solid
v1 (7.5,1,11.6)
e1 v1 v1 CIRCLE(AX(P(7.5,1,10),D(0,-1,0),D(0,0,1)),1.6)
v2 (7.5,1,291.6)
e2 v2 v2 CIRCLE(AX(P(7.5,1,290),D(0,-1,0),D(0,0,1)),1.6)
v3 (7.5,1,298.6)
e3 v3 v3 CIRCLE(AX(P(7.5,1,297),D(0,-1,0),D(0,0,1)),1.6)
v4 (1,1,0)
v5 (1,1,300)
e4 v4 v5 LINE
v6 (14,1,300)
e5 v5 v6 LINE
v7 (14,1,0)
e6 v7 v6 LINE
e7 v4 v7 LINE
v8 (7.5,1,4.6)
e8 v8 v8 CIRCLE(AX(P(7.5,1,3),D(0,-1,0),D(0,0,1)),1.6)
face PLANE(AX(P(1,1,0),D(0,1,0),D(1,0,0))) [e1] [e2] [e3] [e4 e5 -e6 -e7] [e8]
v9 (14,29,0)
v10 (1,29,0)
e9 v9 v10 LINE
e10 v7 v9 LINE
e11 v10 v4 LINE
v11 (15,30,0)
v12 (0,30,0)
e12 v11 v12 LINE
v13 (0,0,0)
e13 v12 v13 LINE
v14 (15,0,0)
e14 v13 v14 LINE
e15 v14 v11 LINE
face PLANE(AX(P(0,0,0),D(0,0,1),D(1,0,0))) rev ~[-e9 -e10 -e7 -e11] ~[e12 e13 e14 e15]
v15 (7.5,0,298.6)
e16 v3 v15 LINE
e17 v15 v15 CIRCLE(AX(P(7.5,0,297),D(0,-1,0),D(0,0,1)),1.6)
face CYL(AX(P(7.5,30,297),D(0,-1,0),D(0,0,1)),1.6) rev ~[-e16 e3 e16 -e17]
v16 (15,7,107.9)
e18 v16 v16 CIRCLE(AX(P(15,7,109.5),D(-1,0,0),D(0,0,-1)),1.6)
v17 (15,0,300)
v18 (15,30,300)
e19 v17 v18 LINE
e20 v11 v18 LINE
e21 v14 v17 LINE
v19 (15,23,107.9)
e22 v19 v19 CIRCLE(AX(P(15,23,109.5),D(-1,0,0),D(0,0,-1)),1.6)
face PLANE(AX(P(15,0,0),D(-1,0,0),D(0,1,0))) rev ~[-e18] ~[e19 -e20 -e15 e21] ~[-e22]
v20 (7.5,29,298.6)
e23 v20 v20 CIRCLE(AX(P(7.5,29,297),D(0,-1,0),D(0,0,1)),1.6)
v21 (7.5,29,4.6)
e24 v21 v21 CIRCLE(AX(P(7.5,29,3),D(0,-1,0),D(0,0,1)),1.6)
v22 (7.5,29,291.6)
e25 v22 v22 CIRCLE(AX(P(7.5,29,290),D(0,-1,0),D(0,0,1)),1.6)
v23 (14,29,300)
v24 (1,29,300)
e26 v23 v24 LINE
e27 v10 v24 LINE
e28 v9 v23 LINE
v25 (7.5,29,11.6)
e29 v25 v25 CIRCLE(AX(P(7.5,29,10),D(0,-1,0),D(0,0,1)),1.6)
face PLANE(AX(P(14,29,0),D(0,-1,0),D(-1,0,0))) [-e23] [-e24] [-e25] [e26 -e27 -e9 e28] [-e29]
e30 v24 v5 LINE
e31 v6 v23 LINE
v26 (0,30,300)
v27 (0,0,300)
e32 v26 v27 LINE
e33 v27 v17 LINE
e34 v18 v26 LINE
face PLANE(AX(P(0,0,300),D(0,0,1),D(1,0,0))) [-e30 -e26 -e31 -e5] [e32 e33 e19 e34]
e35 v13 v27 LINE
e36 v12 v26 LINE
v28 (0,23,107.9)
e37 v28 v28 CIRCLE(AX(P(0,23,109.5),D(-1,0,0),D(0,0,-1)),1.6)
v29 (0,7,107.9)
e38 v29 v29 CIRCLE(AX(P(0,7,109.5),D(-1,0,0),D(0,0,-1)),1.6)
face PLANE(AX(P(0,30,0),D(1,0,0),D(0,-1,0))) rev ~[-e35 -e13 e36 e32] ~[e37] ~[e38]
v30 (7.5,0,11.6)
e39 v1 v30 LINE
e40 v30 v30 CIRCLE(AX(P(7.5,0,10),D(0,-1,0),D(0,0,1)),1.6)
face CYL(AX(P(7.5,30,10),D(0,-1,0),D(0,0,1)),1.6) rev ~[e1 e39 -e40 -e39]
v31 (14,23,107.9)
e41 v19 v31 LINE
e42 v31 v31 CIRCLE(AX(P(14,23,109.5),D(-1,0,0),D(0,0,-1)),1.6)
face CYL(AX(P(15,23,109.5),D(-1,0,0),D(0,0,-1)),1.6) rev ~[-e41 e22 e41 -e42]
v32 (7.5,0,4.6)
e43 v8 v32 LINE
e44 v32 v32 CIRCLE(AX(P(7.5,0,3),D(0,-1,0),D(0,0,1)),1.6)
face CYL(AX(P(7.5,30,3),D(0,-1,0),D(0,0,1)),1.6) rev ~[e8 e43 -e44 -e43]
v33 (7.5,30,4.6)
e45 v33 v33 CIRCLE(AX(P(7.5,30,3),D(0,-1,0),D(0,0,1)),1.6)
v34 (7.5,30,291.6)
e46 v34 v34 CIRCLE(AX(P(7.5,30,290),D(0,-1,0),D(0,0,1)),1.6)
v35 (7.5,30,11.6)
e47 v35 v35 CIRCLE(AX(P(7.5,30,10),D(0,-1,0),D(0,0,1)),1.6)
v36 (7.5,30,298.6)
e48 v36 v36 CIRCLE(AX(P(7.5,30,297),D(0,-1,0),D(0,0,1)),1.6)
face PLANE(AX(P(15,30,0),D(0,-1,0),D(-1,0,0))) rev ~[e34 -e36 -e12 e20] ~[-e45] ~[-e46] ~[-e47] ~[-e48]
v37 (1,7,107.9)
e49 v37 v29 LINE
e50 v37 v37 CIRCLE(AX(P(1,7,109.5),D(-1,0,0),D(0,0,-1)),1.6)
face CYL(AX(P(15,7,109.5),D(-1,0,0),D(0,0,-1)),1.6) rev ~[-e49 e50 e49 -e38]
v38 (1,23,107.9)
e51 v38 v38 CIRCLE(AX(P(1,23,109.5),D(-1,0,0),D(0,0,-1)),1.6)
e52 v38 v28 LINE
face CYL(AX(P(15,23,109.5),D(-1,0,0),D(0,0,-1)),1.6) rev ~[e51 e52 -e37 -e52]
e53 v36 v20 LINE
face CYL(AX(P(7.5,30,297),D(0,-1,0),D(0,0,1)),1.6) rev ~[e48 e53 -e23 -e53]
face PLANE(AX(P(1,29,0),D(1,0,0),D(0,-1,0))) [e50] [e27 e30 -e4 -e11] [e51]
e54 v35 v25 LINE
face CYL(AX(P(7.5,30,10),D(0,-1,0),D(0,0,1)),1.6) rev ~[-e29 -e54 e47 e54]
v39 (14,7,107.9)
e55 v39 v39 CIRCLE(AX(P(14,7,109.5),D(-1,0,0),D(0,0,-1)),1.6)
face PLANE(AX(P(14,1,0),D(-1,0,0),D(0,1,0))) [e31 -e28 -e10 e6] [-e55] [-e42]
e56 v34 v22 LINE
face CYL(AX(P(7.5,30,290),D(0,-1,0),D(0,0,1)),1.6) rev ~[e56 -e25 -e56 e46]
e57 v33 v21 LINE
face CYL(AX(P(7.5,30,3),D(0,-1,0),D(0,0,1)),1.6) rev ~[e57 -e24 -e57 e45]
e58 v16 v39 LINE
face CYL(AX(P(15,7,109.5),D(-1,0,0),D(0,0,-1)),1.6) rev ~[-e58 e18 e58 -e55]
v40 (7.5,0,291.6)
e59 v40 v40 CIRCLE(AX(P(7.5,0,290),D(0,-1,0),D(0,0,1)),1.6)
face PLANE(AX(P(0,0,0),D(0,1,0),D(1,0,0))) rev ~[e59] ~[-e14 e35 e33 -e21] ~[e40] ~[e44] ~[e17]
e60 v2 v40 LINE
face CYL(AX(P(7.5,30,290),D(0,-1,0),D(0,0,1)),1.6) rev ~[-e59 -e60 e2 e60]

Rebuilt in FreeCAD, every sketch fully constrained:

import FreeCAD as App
import Part
import Sketcher

V = App.Vector

doc = App.newDocument("Part")
params = doc.addObject("Spreadsheet::Sheet", "Params")
for row, (alias, value) in enumerate([
    ("sketch1_width", "15 mm"),
    ("sketch1_width2", "13 mm"),
    ("sketch1_height", "30 mm"),
    ("sketch1_height2", "28 mm"),
    ("pad1_length", "300 mm"),
    ("sketch2_diameter", "3.2 mm"),
    ("hole_diameter", "3.2 mm"),
    ("hole_depth", "30 mm"),
    ("sketch3_diameter", "3.2 mm"),
    ("hole2_diameter", "3.2 mm"),
    ("hole2_depth", "15 mm"),
], start=1):
    params.set(f"A{row}", alias)
    params.set(f"B{row}", "=" + value)
    params.setAlias(f"B{row}", alias)

body = doc.addObject("PartDesign::Body", "Body")

# Sketch on XY plane
sketch1 = doc.addObject("Sketcher::SketchObject", "Sketch")
body.addObject(sketch1)
sketch1.AttachmentSupport = (doc.XY_Plane, [""])
sketch1.MapMode = "FlatFace"
sketch1.addGeometry([
    Part.LineSegment(V(0, 30, 0), V(0, 0, 0)),  # 0
    Part.LineSegment(V(0, 0, 0), V(15, 0, 0)),  # 1
    Part.LineSegment(V(15, 0, 0), V(15, 30, 0)),  # 2
    Part.LineSegment(V(15, 30, 0), V(0, 30, 0)),  # 3
    Part.LineSegment(V(14, 1, 0), V(1, 1, 0)),  # 4
    Part.LineSegment(V(1, 1, 0), V(1, 29, 0)),  # 5
    Part.LineSegment(V(1, 29, 0), V(14, 29, 0)),  # 6
    Part.LineSegment(V(14, 29, 0), V(14, 1, 0)),  # 7
], False)
sketch1.addConstraint([
    Sketcher.Constraint("Coincident", 0, 2, 1, 1),
    Sketcher.Constraint("Coincident", 1, 2, 2, 1),
    Sketcher.Constraint("Coincident", 2, 2, 3, 1),
    Sketcher.Constraint("Coincident", 3, 2, 0, 1),
    Sketcher.Constraint("Coincident", 4, 2, 5, 1),
    Sketcher.Constraint("Coincident", 5, 2, 6, 1),
    Sketcher.Constraint("Coincident", 6, 2, 7, 1),
    Sketcher.Constraint("Coincident", 7, 2, 4, 1),
    Sketcher.Constraint("Vertical", 0),
    Sketcher.Constraint("Horizontal", 1),
    Sketcher.Constraint("Vertical", 2),
    Sketcher.Constraint("Horizontal", 3),
    Sketcher.Constraint("Horizontal", 4),
    Sketcher.Constraint("Vertical", 5),
    Sketcher.Constraint("Horizontal", 6),
    Sketcher.Constraint("Vertical", 7),
    Sketcher.Constraint("Coincident", 0, 2, -1, 1),
    Sketcher.Constraint("DistanceX", 1, 1, 1, 2, 15.0),
    Sketcher.Constraint("DistanceX", 4, 2, 4, 1, 13.0),
    Sketcher.Constraint("DistanceY", 0, 2, 0, 1, 30.0),
    Sketcher.Constraint("DistanceY", 5, 1, 5, 2, 28.0),
    Sketcher.Constraint("DistanceX", -1, 1, 4, 2, 1.0),
    Sketcher.Constraint("DistanceY", -1, 1, 4, 2, 1.0),
])
sketch1.setExpression("Constraints[17]", "Params.sketch1_width")
sketch1.setExpression("Constraints[18]", "Params.sketch1_width2")
sketch1.setExpression("Constraints[19]", "Params.sketch1_height")
sketch1.setExpression("Constraints[20]", "Params.sketch1_height2")
pad1 = doc.addObject("PartDesign::Pad", "Pad")
body.addObject(pad1)
pad1.Profile = sketch1
pad1.setExpression("Length", "Params.pad1_length")

# Sketch on XZ plane
sketch2 = doc.addObject("Sketcher::SketchObject", "Sketch001")
body.addObject(sketch2)
sketch2.AttachmentSupport = (doc.XZ_Plane, [""])
sketch2.MapMode = "FlatFace"
sketch2.AttachmentOffset = App.Placement(V(0, 0, -30), App.Rotation())
sketch2.addGeometry([
    Part.Circle(V(7.5, 297, 0), V(0, 0, 1), 1.6),
    Part.Circle(V(7.5, 290, 0), V(0, 0, 1), 1.6),
    Part.Circle(V(7.5, 10, 0), V(0, 0, 1), 1.6),
    Part.Circle(V(7.5, 3, 0), V(0, 0, 1), 1.6),
], False)
sketch2.addConstraint([
    Sketcher.Constraint("Equal", 0, 1),
    Sketcher.Constraint("Equal", 1, 2),
    Sketcher.Constraint("Equal", 2, 3),
    Sketcher.Constraint("Vertical", 0, 3, 1, 3),
    Sketcher.Constraint("Vertical", 1, 3, 2, 3),
    Sketcher.Constraint("Vertical", 2, 3, 3, 3),
    Sketcher.Constraint("Diameter", 0, 3.2),
    Sketcher.Constraint("DistanceY", -1, 1, 0, 3, 297.0),
    Sketcher.Constraint("DistanceY", -1, 1, 1, 3, 290.0),
    Sketcher.Constraint("DistanceY", -1, 1, 2, 3, 10.0),
    Sketcher.Constraint("DistanceY", -1, 1, 3, 3, 3.0),
    Sketcher.Constraint("DistanceX", -1, 1, 0, 3, 7.5),
])
sketch2.setExpression("Constraints[6]", "Params.sketch2_diameter")
doc.recompute()
hole = doc.addObject("PartDesign::Hole", "Hole")
body.addObject(hole)
hole.Profile = sketch2
hole.ThreadType = "None"
hole.setExpression("Diameter", "Params.hole_diameter")
hole.DepthType = "Dimension"
hole.setExpression("Depth", "Params.hole_depth")
hole.DrillPoint = "Flat"
hole.Reversed = True

# Sketch on YZ plane
sketch3 = doc.addObject("Sketcher::SketchObject", "Sketch002")
body.addObject(sketch3)
sketch3.AttachmentSupport = (doc.YZ_Plane, [""])
sketch3.MapMode = "FlatFace"
sketch3.AttachmentOffset = App.Placement(V(0, 0, 15), App.Rotation())
sketch3.addGeometry([
    Part.Circle(V(23, 109.5, 0), V(0, 0, 1), 1.6),
    Part.Circle(V(7, 109.5, 0), V(0, 0, 1), 1.6),
], False)
sketch3.addConstraint([
    Sketcher.Constraint("Equal", 0, 1),
    Sketcher.Constraint("Horizontal", 0, 3, 1, 3),
    Sketcher.Constraint("Diameter", 0, 3.2),
    Sketcher.Constraint("DistanceX", -1, 1, 0, 3, 23.0),
    Sketcher.Constraint("DistanceX", -1, 1, 1, 3, 7.0),
    Sketcher.Constraint("DistanceY", -1, 1, 0, 3, 109.5),
])
sketch3.setExpression("Constraints[2]", "Params.sketch3_diameter")
doc.recompute()
hole2 = doc.addObject("PartDesign::Hole", "Hole001")
body.addObject(hole2)
hole2.Profile = sketch3
hole2.ThreadType = "None"
hole2.setExpression("Diameter", "Params.hole2_diameter")
hole2.DepthType = "Dimension"
hole2.setExpression("Depth", "Params.hole2_depth")
hole2.DrillPoint = "Flat"

doc.recompute()
